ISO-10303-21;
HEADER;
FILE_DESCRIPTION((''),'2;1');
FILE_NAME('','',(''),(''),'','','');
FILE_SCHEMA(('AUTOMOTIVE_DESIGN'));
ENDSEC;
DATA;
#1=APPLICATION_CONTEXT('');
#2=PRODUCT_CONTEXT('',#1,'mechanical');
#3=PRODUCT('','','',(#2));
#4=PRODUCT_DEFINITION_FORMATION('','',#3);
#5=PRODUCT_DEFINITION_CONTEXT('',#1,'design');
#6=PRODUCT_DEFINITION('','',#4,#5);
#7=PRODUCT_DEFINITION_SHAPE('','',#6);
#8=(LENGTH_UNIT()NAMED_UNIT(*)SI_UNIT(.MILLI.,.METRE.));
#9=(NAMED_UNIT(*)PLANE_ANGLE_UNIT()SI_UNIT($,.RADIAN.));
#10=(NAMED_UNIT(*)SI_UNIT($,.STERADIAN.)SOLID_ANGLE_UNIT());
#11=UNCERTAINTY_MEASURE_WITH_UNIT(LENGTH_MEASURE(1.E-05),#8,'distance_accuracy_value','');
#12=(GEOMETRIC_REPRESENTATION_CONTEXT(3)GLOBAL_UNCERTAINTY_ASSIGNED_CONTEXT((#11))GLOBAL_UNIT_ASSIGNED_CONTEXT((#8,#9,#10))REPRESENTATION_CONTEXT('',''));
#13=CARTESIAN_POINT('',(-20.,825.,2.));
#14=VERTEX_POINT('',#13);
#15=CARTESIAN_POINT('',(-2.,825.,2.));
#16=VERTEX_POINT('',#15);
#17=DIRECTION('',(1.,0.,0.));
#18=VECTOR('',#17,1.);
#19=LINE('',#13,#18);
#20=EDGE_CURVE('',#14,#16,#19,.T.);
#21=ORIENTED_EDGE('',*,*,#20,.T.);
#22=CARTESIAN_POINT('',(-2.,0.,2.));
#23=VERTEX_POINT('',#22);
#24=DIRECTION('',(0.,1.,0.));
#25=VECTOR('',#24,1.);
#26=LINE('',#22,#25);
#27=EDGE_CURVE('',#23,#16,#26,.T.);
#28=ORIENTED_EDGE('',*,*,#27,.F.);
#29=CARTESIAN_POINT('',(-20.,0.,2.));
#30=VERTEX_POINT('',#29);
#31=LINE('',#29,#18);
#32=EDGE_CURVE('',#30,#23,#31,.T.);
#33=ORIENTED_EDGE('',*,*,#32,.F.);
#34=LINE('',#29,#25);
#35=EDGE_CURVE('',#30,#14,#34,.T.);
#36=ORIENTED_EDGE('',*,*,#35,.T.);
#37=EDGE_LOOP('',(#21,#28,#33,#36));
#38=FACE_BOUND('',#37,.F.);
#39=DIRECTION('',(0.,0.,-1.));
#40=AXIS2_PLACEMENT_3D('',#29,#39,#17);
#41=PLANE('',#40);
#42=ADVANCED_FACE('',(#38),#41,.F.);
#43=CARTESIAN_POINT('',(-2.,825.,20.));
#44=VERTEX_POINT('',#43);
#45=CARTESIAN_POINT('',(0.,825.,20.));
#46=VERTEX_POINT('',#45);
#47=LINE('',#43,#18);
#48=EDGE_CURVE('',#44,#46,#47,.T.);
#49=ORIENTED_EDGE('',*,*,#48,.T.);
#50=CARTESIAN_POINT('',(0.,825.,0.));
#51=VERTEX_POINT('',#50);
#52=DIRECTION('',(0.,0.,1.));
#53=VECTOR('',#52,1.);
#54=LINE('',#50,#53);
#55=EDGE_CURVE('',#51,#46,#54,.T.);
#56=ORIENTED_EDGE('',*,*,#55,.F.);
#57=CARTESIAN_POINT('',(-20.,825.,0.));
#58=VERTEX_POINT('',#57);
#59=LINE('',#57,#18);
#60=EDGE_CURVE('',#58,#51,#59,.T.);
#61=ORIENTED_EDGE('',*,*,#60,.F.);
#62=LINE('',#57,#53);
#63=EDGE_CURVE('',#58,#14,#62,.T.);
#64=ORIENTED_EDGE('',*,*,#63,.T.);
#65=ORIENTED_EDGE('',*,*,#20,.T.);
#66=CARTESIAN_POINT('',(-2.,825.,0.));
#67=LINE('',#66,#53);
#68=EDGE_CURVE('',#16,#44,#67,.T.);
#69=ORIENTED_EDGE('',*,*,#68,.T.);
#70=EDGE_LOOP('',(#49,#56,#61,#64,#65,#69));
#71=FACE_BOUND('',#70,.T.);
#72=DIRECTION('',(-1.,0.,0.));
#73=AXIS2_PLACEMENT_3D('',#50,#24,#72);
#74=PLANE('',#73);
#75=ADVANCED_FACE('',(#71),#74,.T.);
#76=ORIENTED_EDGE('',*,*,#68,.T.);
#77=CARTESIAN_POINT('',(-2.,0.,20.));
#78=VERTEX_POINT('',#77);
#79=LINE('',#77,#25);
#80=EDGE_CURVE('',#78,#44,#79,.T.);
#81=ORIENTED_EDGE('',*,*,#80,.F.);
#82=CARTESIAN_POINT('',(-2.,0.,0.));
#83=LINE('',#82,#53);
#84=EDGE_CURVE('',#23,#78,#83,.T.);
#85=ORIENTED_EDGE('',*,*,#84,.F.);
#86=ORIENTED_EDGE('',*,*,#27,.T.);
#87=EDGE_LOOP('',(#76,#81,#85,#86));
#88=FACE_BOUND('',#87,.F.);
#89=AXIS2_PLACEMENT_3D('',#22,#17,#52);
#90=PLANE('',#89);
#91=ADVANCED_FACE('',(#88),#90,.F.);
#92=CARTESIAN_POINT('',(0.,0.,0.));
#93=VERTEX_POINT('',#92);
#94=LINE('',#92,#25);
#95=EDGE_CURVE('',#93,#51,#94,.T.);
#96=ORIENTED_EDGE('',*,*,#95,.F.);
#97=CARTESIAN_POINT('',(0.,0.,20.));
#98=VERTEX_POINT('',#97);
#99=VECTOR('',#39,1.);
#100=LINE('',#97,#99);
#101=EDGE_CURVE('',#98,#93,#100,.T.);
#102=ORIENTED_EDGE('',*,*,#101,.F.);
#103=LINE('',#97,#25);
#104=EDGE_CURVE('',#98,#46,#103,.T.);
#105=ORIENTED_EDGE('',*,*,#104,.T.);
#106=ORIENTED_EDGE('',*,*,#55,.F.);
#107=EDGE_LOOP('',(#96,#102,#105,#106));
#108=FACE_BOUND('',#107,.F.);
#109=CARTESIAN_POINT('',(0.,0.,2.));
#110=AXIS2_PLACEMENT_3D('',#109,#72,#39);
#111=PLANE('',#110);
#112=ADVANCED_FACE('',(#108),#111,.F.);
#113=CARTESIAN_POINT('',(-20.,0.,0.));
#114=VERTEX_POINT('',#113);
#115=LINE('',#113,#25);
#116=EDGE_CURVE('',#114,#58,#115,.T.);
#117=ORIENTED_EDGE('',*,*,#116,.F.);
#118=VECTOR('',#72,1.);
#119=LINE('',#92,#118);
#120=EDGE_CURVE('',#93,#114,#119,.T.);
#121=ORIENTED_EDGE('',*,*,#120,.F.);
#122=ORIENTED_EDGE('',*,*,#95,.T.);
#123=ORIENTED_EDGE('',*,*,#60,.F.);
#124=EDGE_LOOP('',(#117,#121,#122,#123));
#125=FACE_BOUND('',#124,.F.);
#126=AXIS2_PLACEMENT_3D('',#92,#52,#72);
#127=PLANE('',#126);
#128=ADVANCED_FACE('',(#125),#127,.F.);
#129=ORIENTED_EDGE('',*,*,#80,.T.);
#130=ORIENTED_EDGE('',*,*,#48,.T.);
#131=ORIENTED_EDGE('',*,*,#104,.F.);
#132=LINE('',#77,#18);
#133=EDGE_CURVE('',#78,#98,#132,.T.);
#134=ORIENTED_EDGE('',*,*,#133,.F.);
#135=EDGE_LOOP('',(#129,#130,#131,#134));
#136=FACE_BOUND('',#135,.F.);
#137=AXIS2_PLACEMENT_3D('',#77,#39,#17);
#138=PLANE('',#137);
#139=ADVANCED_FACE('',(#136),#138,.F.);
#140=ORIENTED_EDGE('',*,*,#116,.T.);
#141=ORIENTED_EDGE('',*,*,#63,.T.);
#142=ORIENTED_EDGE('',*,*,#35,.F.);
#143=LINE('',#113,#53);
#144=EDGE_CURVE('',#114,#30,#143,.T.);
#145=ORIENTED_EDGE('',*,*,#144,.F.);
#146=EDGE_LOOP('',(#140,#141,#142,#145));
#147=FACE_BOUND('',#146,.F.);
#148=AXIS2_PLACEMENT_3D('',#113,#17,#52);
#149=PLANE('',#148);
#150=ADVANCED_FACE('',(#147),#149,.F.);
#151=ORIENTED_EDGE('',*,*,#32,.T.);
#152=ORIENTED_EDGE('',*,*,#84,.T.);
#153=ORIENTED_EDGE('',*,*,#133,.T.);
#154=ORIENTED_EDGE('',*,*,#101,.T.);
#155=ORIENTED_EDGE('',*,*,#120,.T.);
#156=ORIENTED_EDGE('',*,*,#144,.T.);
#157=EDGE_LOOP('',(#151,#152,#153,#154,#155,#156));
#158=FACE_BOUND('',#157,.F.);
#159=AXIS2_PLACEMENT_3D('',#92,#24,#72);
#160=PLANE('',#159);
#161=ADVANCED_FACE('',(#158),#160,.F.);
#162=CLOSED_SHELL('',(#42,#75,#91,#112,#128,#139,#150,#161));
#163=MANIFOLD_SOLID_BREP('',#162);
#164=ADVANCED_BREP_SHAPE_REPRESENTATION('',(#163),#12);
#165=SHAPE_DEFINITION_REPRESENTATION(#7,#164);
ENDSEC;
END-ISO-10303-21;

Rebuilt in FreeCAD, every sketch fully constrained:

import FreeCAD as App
import Part
import Sketcher
from FreeCAD import Vector
Q = App.Units.Quantity


def add_polygon(sketch, points):
    """Adds a closed chain of lines whose ends are joined by coincident constraints."""
    first, n = sketch.GeometryCount, len(points)
    for a, b in zip(points, points[1:] + points[:1]):
        sketch.addGeometry(Part.LineSegment(App.Vector(*a, 0), App.Vector(*b, 0)), False)
    for i in range(n):
        sketch.addConstraint(Sketcher.Constraint("Coincident", first + i, 2, first + (i + 1) % n, 1))

doc = App.newDocument("Part")
body = doc.addObject("PartDesign::Body", "Body")

# Sketch on XZ plane
sketch1 = doc.addObject("Sketcher::SketchObject", "Sketch")
body.addObject(sketch1)
sketch1.AttachmentSupport = (doc.XZ_Plane, [""])
sketch1.MapMode = "FlatFace"
add_polygon(sketch1, [(0, 0), (-20, 0), (-20, 2), (-2, 2), (-2, 20), (0, 20)])  # lines 0-5
sketch1.addConstraint([
    Sketcher.Constraint("Horizontal", 0),
    Sketcher.Constraint("Vertical", 1),
    Sketcher.Constraint("Horizontal", 2),
    Sketcher.Constraint("Vertical", 3),
    Sketcher.Constraint("Horizontal", 4),
    Sketcher.Constraint("Vertical", 5),
    Sketcher.Constraint("Coincident", 5, 2, -1, 1),
    Sketcher.Constraint("Equal", 4, 1),
    Sketcher.Constraint("Equal", 2, 3),
    Sketcher.Constraint("DistanceX", 0, 2, 0, 1, Q("20 mm")),
    Sketcher.Constraint("DistanceX", 4, 1, 4, 2, Q("2 mm")),
])
pad1 = doc.addObject("PartDesign::Pad", "Pad")
body.addObject(pad1)
pad1.Profile = sketch1
pad1.Length = 825
pad1.Reversed = True

doc.recompute()
